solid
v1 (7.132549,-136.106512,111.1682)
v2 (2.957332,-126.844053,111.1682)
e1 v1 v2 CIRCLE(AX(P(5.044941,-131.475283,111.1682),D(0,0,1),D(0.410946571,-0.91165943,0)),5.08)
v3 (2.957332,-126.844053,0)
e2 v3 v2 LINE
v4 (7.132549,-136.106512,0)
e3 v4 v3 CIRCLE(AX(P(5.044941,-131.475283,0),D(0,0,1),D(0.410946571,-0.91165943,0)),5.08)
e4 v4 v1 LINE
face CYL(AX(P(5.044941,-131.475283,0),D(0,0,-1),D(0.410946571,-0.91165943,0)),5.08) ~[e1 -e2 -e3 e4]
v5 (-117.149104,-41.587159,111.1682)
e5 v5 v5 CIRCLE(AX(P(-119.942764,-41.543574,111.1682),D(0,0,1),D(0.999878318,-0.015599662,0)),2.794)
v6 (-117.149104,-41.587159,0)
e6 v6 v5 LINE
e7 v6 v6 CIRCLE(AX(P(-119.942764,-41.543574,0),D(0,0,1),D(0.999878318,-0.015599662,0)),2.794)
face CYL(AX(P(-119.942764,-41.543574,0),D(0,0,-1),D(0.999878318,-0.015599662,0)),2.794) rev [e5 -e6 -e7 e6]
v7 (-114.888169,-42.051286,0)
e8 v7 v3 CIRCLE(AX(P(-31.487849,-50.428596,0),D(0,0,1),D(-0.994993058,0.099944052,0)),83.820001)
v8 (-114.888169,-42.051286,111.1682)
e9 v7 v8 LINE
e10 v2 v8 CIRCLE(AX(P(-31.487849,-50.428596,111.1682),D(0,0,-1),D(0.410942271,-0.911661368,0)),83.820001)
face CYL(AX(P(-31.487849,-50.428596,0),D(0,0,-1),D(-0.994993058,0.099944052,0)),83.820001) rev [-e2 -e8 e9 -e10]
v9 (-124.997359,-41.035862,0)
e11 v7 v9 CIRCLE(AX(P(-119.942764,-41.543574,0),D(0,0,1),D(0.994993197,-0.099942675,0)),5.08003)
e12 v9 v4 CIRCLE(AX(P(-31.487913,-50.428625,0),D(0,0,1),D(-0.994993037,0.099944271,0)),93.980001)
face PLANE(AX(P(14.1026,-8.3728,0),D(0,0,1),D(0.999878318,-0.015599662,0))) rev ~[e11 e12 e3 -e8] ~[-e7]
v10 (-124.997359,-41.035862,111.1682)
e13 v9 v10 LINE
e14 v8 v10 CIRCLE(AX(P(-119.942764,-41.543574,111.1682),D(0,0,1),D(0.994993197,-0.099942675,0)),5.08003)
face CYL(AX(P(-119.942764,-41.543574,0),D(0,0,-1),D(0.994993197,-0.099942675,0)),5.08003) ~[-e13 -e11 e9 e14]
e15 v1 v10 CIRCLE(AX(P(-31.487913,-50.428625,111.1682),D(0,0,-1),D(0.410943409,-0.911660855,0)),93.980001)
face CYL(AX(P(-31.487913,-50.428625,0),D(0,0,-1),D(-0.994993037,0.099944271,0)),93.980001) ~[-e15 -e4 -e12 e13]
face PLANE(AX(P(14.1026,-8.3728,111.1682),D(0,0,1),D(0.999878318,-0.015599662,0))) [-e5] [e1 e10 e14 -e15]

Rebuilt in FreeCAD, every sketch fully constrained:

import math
import FreeCAD as App
import Part
import Sketcher

V = App.Vector
Q = App.Units.Quantity

doc = App.newDocument("Part")
params = doc.addObject("Spreadsheet::Sheet", "Params")
for row, (alias, value) in enumerate([
    ("sketch1_radius", "0.2 in"),
    ("sketch1_radius2", "3.7 in"),
    ("sketch1_diameter", "0.22 in"),
    ("sketch1_height", "0.02 in"),
    ("pad1_length", "4.3767008 in"),
], start=1):
    params.set(f"A{row}", alias)
    params.set(f"B{row}", "=" + value)
    params.setAlias(f"B{row}", alias)

body = doc.addObject("PartDesign::Body", "Body")

# Sketch on XY plane
sketch1 = body.newObject("Sketcher::SketchObject", "Sketch")
sketch1.AttachmentSupport = (doc.getObject("XY_Plane"), [""])
sketch1.MapMode = "FlatFace"
sketch1.addGeometry(Part.ArcOfCircle(Part.Circle(V(-31.487904, -50.428621, 0), V(0, 0, 1), 93.980009), math.radians(174.264041), math.radians(294.264106)), False)
sketch1.addGeometry(Part.ArcOfCircle(Part.Circle(V(5.044941, -131.475283, 0), V(0, 0, 1), 5.08), math.radians(-65.735689), math.radians(114.264311)), False)
sketch1.addGeometry(Part.ArcOfCircle(Part.Circle(V(-31.487904, -50.428621, 0), V(0, 0, 1), 83.819949), math.radians(174.264031), math.radians(294.264082)), False)
sketch1.addGeometry(Part.ArcOfCircle(Part.Circle(V(-119.942764, -41.543574, 0), V(0, 0, 1), 5.08003), math.radians(-5.735869), math.radians(174.264131)), False)
sketch1.addGeometry(Part.Circle(V(-119.942764, -41.543574, 0), V(0, 0, 1), 2.794), False)
sketch1.addConstraint(Sketcher.Constraint("Coincident", 0, 2, 1, 1))
sketch1.addConstraint(Sketcher.Constraint("Coincident", 1, 2, 2, 2))
sketch1.addConstraint(Sketcher.Constraint("Coincident", 2, 1, 3, 1))
sketch1.addConstraint(Sketcher.Constraint("Coincident", 3, 2, 0, 1))
sketch1.addConstraint(Sketcher.Constraint("Coincident", 2, 3, 0, 3))
sketch1.addConstraint(Sketcher.Constraint("Coincident", 4, 3, 3, 3))
sketch1.addConstraint(Sketcher.Constraint("Radius", 1, Q("0.2 in")))
sketch1.addConstraint(Sketcher.Constraint("Radius", 0, Q("3.7 in")))
sketch1.addConstraint(Sketcher.Constraint("Diameter", 4, Q("0.22 in")))
sketch1.addConstraint(Sketcher.Constraint("DistanceY", 2, 1, 3, 3, Q("0.02 in")))
sketch1.addConstraint(Sketcher.Constraint("DistanceY", 3, 3, 3, 2, Q("0.02 in")))
sketch1.addConstraint(Sketcher.Constraint("DistanceY", 1, 3, -1, 1, Q("5.1762 in")))
sketch1.addConstraint(Sketcher.Constraint("DistanceX", -1, 1, 0, 2, Q("0.2808 in")))
sketch1.addConstraint(Sketcher.Constraint("DistanceX", 0, 3, 1, 3, Q("1.4383 in")))
sketch1.addConstraint(Sketcher.Constraint("DistanceY", 0, 3, 3, 3, Q("0.3498 in")))
sketch1.addConstraint(Sketcher.Constraint("DistanceX", 1, 3, 0, 2, Q("0.0822 in")))
sketch1.addConstraint(Sketcher.Constraint("DistanceX", 1, 2, 1, 3, Q("0.0822 in")))
sketch1.setExpression("Constraints[6]", "Params.sketch1_radius")
sketch1.setExpression("Constraints[7]", "Params.sketch1_radius2")
sketch1.setExpression("Constraints[8]", "Params.sketch1_diameter")
sketch1.setExpression("Constraints[10]", "Params.sketch1_height")
pad1 = body.newObject("PartDesign::Pad", "Pad")
pad1.Profile = sketch1
pad1.setExpression("Length", "Params.pad1_length")

doc.recompute()
